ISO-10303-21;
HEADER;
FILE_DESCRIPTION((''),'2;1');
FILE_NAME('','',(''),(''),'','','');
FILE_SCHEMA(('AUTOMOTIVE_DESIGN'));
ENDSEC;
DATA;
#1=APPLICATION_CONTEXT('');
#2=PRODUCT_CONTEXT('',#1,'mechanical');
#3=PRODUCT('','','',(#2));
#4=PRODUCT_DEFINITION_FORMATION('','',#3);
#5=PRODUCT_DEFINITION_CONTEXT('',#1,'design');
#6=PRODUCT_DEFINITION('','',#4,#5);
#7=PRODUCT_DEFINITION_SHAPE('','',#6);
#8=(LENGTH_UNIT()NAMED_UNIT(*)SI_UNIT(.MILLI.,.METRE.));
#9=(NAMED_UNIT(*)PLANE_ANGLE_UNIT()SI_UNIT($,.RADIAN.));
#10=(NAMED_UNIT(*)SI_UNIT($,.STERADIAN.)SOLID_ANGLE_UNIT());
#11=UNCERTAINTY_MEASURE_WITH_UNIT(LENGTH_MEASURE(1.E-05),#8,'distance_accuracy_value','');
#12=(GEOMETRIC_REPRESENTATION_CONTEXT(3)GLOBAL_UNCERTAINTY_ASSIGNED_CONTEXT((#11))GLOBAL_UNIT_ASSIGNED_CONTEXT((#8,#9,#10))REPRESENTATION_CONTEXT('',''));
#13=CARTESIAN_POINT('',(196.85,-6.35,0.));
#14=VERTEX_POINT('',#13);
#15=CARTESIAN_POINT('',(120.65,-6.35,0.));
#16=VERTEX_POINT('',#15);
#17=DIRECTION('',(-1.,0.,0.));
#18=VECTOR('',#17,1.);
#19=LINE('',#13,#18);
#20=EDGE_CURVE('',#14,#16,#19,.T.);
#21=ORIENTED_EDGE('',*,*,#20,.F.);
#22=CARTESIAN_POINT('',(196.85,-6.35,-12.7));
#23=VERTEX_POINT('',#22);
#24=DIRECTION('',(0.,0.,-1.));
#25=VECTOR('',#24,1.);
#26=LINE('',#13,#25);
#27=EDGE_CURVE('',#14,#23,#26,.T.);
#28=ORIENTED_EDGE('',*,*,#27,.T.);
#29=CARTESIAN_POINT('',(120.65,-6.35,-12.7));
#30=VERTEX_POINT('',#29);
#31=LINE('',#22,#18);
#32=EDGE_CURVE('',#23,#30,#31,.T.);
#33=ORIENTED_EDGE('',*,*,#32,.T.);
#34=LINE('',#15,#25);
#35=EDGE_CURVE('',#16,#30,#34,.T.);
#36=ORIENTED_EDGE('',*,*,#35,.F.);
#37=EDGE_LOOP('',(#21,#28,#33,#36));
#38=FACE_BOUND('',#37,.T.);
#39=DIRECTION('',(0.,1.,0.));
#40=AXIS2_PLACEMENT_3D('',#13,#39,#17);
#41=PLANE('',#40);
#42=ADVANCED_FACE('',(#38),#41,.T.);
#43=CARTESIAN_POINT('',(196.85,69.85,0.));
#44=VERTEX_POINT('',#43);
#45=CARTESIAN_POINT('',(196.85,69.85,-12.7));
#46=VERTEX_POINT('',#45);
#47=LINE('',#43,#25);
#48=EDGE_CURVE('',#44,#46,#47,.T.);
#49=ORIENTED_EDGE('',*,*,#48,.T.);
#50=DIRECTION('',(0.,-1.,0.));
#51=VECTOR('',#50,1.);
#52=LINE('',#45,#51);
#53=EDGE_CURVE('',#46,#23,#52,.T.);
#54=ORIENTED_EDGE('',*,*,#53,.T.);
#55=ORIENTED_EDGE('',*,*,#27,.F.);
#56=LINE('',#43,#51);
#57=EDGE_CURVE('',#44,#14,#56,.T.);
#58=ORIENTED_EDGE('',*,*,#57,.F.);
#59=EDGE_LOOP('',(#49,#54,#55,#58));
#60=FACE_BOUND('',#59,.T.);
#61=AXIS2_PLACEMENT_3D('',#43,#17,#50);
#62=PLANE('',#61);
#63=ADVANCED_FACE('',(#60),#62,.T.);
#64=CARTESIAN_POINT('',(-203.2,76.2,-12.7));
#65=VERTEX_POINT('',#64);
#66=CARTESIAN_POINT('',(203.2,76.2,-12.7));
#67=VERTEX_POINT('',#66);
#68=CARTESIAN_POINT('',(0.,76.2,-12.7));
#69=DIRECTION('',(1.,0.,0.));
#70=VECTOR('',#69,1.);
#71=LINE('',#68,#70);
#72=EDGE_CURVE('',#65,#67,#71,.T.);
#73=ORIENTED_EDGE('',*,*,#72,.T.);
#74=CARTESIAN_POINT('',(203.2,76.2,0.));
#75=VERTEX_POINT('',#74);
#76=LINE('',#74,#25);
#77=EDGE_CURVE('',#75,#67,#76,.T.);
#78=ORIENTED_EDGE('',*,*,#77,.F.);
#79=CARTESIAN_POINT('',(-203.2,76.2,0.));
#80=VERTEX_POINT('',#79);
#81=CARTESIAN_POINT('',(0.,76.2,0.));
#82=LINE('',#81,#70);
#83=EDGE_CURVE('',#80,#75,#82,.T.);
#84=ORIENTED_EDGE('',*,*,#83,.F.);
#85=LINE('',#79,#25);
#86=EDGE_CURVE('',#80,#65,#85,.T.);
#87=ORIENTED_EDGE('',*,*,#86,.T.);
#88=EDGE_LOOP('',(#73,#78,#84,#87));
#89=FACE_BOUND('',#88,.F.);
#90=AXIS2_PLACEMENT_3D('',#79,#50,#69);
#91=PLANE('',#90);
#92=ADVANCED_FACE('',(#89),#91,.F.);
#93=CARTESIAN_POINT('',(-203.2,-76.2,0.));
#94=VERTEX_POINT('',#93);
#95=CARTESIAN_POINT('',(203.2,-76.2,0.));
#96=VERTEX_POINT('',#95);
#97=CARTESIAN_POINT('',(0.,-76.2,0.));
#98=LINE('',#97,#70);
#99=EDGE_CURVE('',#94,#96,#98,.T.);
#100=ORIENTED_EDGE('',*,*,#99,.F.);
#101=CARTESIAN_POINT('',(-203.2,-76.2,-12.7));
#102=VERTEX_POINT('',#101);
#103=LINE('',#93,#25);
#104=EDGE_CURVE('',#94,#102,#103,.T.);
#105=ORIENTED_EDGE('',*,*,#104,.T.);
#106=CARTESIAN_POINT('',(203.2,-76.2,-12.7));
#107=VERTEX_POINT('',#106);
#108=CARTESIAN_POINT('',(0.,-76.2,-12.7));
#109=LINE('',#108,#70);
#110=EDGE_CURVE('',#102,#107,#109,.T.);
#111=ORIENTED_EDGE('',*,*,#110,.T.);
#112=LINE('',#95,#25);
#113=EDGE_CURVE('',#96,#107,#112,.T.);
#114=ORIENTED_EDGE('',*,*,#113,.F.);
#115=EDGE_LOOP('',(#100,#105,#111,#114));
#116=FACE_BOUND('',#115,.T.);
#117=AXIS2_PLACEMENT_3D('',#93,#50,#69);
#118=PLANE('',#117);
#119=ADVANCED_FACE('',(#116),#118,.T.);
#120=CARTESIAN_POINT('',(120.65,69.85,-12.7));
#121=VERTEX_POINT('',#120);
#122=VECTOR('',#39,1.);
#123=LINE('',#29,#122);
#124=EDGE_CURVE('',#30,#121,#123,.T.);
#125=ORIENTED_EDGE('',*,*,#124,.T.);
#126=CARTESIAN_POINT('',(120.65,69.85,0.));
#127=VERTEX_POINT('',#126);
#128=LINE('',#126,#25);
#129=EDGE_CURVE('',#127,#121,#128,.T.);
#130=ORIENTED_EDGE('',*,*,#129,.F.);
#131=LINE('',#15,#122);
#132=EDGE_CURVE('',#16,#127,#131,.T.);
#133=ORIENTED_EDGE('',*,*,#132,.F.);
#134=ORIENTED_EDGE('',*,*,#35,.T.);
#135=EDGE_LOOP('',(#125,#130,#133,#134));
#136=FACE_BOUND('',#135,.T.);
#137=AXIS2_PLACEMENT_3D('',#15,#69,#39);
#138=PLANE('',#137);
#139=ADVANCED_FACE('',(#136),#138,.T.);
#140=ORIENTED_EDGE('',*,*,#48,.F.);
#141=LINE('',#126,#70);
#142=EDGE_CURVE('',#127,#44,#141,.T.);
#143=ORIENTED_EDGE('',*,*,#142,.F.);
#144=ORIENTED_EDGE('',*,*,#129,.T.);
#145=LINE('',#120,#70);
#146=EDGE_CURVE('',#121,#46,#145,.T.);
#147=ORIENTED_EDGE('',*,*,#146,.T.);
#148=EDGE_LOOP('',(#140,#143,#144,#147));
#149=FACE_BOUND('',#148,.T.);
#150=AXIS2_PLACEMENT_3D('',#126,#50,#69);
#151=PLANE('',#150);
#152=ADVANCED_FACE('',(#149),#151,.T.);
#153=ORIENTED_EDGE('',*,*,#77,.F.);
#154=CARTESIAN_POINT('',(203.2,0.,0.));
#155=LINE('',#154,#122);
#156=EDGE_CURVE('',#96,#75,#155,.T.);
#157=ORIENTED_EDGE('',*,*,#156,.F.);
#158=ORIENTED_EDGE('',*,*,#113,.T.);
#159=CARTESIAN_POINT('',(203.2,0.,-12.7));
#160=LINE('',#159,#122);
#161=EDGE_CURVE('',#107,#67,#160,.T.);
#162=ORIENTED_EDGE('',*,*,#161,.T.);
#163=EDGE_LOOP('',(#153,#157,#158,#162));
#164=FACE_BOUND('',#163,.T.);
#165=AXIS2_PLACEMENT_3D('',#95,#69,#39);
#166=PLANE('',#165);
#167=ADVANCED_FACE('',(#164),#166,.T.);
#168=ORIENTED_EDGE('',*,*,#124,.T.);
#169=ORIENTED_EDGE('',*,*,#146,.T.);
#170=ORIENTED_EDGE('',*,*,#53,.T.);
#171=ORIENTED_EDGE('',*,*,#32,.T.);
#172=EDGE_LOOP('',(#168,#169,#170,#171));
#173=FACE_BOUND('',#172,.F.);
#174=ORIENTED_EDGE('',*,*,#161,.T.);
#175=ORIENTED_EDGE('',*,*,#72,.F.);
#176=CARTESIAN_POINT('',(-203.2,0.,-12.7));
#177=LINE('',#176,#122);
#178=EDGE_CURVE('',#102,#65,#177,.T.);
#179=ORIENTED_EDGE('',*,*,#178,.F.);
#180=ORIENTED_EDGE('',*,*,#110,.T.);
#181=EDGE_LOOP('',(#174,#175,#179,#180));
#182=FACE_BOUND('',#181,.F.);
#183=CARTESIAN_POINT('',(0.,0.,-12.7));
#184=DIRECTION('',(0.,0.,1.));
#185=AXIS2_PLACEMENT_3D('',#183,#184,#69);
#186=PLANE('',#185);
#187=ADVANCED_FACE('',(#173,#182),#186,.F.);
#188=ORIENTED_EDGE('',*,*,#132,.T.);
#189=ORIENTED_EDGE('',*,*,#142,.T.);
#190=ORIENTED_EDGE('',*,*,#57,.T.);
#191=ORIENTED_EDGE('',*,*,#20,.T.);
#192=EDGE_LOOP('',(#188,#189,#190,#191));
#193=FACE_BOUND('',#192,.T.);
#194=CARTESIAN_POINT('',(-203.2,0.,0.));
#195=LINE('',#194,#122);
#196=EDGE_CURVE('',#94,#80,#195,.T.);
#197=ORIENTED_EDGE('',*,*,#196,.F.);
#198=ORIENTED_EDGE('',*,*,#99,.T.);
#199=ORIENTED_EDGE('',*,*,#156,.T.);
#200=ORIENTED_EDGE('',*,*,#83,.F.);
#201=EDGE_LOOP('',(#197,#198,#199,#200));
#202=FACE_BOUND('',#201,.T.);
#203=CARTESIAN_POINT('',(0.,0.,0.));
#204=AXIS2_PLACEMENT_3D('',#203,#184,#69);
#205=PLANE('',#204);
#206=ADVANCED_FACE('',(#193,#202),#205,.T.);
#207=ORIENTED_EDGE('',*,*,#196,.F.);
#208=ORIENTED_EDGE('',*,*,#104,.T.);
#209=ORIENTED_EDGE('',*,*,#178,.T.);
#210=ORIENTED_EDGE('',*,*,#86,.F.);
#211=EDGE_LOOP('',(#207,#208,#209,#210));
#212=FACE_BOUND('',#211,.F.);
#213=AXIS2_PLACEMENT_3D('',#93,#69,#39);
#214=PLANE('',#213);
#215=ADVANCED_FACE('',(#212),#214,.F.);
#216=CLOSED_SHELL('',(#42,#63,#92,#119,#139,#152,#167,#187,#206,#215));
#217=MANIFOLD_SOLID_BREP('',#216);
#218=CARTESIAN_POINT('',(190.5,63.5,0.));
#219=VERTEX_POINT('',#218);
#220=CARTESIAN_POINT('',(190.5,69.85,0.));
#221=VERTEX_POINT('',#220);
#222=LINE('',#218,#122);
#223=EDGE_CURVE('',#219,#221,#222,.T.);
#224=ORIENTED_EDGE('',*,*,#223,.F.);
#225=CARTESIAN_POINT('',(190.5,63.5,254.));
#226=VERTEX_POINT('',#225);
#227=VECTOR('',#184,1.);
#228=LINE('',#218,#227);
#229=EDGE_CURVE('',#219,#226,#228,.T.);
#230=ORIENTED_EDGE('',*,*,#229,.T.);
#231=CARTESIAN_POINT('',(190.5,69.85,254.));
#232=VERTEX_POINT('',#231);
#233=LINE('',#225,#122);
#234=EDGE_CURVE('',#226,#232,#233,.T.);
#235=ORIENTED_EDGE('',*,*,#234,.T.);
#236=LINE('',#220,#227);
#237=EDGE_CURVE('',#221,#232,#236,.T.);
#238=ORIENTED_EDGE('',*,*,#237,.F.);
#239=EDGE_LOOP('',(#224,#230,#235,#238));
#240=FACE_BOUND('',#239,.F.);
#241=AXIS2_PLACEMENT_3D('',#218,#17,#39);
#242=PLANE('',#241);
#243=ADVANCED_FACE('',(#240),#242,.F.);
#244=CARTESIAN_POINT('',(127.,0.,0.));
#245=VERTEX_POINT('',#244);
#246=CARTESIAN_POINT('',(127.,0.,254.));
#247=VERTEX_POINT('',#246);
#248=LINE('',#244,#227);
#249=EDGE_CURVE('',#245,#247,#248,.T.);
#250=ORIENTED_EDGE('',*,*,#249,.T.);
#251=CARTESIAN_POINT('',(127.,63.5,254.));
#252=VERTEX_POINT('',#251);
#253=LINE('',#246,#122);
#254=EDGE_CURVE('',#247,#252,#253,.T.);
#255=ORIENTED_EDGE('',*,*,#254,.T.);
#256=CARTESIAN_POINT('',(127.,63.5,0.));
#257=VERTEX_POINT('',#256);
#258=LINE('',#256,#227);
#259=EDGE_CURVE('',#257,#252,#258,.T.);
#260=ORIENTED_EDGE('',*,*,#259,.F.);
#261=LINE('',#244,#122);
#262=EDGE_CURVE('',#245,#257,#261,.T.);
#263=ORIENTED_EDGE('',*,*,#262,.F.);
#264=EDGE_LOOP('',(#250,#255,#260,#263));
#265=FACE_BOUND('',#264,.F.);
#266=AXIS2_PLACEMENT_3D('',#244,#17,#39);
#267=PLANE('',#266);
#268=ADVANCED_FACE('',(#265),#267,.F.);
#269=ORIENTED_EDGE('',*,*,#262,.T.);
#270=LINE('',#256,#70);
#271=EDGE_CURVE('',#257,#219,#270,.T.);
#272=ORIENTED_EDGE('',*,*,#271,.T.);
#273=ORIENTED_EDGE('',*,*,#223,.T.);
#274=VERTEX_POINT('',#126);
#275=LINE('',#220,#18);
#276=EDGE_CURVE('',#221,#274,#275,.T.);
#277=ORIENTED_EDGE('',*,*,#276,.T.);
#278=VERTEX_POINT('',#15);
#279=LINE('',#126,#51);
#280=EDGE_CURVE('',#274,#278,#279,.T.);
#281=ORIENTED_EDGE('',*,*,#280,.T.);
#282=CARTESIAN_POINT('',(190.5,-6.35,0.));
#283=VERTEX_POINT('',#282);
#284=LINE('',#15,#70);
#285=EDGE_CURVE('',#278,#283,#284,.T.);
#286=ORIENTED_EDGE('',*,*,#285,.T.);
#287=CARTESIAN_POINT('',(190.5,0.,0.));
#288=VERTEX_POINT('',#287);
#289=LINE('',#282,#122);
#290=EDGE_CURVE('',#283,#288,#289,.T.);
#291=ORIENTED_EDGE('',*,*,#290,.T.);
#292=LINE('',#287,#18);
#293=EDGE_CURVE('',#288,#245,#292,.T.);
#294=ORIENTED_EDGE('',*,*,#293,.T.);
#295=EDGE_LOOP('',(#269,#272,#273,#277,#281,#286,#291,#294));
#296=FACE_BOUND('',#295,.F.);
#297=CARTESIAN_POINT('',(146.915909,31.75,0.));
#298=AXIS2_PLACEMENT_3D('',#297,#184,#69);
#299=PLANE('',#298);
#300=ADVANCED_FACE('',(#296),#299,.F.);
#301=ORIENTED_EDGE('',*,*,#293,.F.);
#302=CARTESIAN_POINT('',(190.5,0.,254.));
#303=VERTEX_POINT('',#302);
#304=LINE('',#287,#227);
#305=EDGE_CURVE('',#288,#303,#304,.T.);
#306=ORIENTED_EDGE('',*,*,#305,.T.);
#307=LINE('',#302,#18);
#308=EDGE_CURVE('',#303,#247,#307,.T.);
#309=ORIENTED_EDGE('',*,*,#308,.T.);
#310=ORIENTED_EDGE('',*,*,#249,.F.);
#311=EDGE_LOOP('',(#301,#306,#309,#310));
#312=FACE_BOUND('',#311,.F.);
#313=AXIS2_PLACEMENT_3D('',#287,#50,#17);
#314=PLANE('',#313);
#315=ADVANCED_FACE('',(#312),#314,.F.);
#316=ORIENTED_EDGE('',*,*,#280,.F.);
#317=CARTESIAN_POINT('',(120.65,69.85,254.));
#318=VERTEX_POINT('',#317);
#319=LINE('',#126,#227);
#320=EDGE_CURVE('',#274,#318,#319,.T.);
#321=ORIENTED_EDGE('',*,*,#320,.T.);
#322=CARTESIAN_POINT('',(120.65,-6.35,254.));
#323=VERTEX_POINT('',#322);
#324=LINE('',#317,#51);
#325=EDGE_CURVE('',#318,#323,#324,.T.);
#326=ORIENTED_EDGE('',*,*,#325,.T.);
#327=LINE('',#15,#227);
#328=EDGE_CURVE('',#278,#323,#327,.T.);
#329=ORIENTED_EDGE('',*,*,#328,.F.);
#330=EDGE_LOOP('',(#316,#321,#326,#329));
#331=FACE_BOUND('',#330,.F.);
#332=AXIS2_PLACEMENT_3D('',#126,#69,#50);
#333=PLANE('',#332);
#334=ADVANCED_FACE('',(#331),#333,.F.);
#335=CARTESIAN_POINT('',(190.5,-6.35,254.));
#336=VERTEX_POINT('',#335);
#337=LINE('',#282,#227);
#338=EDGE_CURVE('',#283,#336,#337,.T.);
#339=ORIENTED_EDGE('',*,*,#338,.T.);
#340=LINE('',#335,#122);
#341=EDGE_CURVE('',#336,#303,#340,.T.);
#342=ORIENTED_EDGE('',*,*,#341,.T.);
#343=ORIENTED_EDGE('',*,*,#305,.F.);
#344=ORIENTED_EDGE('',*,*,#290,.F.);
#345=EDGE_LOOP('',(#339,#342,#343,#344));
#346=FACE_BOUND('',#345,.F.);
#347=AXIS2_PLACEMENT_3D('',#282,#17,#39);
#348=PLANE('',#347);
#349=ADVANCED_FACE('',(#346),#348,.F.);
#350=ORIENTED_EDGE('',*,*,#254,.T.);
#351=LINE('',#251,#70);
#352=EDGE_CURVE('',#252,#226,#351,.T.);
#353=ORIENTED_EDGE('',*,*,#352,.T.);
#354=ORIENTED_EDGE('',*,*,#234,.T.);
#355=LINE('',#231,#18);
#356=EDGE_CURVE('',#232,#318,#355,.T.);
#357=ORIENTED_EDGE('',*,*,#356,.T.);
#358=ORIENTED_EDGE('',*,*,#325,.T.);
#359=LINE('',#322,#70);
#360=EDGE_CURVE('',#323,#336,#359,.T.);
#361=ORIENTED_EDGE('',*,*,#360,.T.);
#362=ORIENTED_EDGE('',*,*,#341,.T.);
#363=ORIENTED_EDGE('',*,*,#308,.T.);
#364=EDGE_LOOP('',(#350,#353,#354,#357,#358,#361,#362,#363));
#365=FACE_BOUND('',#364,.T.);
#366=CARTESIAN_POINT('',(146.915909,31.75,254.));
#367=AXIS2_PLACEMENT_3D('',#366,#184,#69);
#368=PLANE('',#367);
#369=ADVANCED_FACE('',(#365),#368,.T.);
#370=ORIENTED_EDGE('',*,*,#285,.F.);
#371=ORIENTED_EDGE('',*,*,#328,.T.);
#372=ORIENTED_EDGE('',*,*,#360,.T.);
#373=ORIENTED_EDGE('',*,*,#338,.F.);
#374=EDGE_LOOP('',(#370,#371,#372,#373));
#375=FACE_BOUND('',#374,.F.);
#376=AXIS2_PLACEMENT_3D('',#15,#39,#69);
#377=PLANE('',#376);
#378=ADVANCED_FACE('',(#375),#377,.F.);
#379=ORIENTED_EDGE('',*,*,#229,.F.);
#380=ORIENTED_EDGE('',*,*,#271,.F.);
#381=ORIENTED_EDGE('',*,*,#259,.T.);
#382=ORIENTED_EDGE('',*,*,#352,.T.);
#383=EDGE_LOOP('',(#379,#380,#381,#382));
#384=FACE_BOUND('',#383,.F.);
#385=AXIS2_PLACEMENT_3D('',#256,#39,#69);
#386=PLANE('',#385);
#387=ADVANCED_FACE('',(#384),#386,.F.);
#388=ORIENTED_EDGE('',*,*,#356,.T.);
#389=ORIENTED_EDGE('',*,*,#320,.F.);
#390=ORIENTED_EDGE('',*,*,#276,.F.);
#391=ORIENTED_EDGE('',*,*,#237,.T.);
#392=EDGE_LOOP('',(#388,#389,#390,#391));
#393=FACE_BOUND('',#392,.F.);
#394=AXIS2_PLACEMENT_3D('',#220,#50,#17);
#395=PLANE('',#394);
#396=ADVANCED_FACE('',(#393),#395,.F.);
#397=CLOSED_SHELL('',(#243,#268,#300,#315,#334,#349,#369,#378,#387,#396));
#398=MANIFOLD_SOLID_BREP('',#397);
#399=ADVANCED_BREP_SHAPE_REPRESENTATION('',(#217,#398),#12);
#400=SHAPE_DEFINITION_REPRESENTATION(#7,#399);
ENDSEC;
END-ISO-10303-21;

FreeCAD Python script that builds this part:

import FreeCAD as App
import Part
import Sketcher

V = App.Vector
Q = App.Units.Quantity

doc = App.newDocument("Part")
params = doc.addObject("Spreadsheet::Sheet", "Params")
for row, (alias, value) in enumerate([
    ("sketch1_width", "16 in"),
    ("sketch1_width2", "3 in"),
    ("sketch1_height", "6 in"),
    ("pad1_length", "0.5 in"),
    ("sketch2_height", "3 in"),
    ("sketch2_width", "2.5 in"),
    ("sketch2_width2", "2.75 in"),
    ("pad2_length", "10 in"),
], start=1):
    params.set(f"A{row}", alias)
    params.set(f"B{row}", "=" + value)
    params.setAlias(f"B{row}", alias)

body = doc.addObject("PartDesign::Body", "Body")

# Sketch on XY plane
sketch1 = body.newObject("Sketcher::SketchObject", "Sketch")
sketch1.AttachmentSupport = (doc.getObject("XY_Plane"), [""])
sketch1.MapMode = "FlatFace"
sketch1.addGeometry(Part.LineSegment(V(-203.2, 76.2, 0), V(-203.2, -76.2, 0)), False)
sketch1.addGeometry(Part.LineSegment(V(-203.2, -76.2, 0), V(203.2, -76.2, 0)), False)
sketch1.addGeometry(Part.LineSegment(V(203.2, -76.2, 0), V(203.2, 76.2, 0)), False)
sketch1.addGeometry(Part.LineSegment(V(203.2, 76.2, 0), V(-203.2, 76.2, 0)), False)
sketch1.addGeometry(Part.LineSegment(V(196.85, 69.85, 0), V(196.85, -6.35, 0)), False)
sketch1.addGeometry(Part.LineSegment(V(196.85, -6.35, 0), V(120.65, -6.35, 0)), False)
sketch1.addGeometry(Part.LineSegment(V(120.65, -6.35, 0), V(120.65, 69.85, 0)), False)
sketch1.addGeometry(Part.LineSegment(V(120.65, 69.85, 0), V(196.85, 69.85, 0)), False)
sketch1.addConstraint(Sketcher.Constraint("Coincident", 0, 2, 1, 1))
sketch1.addConstraint(Sketcher.Constraint("Coincident", 1, 2, 2, 1))
sketch1.addConstraint(Sketcher.Constraint("Coincident", 2, 2, 3, 1))
sketch1.addConstraint(Sketcher.Constraint("Coincident", 3, 2, 0, 1))
sketch1.addConstraint(Sketcher.Constraint("Coincident", 4, 2, 5, 1))
sketch1.addConstraint(Sketcher.Constraint("Coincident", 5, 2, 6, 1))
sketch1.addConstraint(Sketcher.Constraint("Coincident", 6, 2, 7, 1))
sketch1.addConstraint(Sketcher.Constraint("Coincident", 7, 2, 4, 1))
sketch1.addConstraint(Sketcher.Constraint("Vertical", 0))
sketch1.addConstraint(Sketcher.Constraint("Horizontal", 1))
sketch1.addConstraint(Sketcher.Constraint("Vertical", 2))
sketch1.addConstraint(Sketcher.Constraint("Horizontal", 3))
sketch1.addConstraint(Sketcher.Constraint("Vertical", 4))
sketch1.addConstraint(Sketcher.Constraint("Horizontal", 5))
sketch1.addConstraint(Sketcher.Constraint("Vertical", 6))
sketch1.addConstraint(Sketcher.Constraint("Horizontal", 7))
sketch1.addConstraint(Sketcher.Constraint("Symmetric", 0, 2, 2, 2, -1, 1))
sketch1.addConstraint(Sketcher.Constraint("Equal", 7, 4))
sketch1.addConstraint(Sketcher.Constraint("DistanceX", 1, 1, 1, 2, Q("16 in")))
sketch1.addConstraint(Sketcher.Constraint("DistanceX", 5, 2, 5, 1, Q("3 in")))
sketch1.addConstraint(Sketcher.Constraint("DistanceY", 0, 2, 0, 1, Q("6 in")))
sketch1.addConstraint(Sketcher.Constraint("DistanceX", -1, 1, 4, 2, Q("7.75 in")))
sketch1.addConstraint(Sketcher.Constraint("DistanceY", 4, 2, -1, 1, Q("0.25 in")))
sketch1.setExpression("Constraints[18]", "Params.sketch1_width")
sketch1.setExpression("Constraints[19]", "Params.sketch1_width2")
sketch1.setExpression("Constraints[20]", "Params.sketch1_height")
pad1 = body.newObject("PartDesign::Pad", "Pad")
pad1.Profile = sketch1
pad1.setExpression("Length", "Params.pad1_length")
pad1.Reversed = True
body2 = doc.addObject("PartDesign::Body", "Body001")

# Sketch on XY plane
sketch2 = body2.newObject("Sketcher::SketchObject", "Sketch001")
sketch2.AttachmentSupport = (doc.getObject("XY_Plane001"), [""])
sketch2.MapMode = "FlatFace"
sketch2.addGeometry(Part.LineSegment(V(190.5, -6.35, 0), V(190.5, 0, 0)), False)
sketch2.addGeometry(Part.LineSegment(V(190.5, 0, 0), V(127, 0, 0)), False)
sketch2.addGeometry(Part.LineSegment(V(127, 0, 0), V(127, 63.5, 0)), False)
sketch2.addGeometry(Part.LineSegment(V(127, 63.5, 0), V(190.5, 63.5, 0)), False)
sketch2.addGeometry(Part.LineSegment(V(190.5, 63.5, 0), V(190.5, 69.85, 0)), False)
sketch2.addGeometry(Part.LineSegment(V(190.5, 69.85, 0), V(120.65, 69.85, 0)), False)
sketch2.addGeometry(Part.LineSegment(V(120.65, 69.85, 0), V(120.65, -6.35, 0)), False)
sketch2.addGeometry(Part.LineSegment(V(120.65, -6.35, 0), V(190.5, -6.35, 0)), False)
sketch2.addConstraint(Sketcher.Constraint("Coincident", 0, 2, 1, 1))
sketch2.addConstraint(Sketcher.Constraint("Coincident", 1, 2, 2, 1))
sketch2.addConstraint(Sketcher.Constraint("Coincident", 2, 2, 3, 1))
sketch2.addConstraint(Sketcher.Constraint("Coincident", 3, 2, 4, 1))
sketch2.addConstraint(Sketcher.Constraint("Coincident", 4, 2, 5, 1))
sketch2.addConstraint(Sketcher.Constraint("Coincident", 5, 2, 6, 1))
sketch2.addConstraint(Sketcher.Constraint("Coincident", 6, 2, 7, 1))
sketch2.addConstraint(Sketcher.Constraint("Coincident", 7, 2, 0, 1))
sketch2.addConstraint(Sketcher.Constraint("Vertical", 0))
sketch2.addConstraint(Sketcher.Constraint("Horizontal", 1))
sketch2.addConstraint(Sketcher.Constraint("Vertical", 2))
sketch2.addConstraint(Sketcher.Constraint("Horizontal", 3))
sketch2.addConstraint(Sketcher.Constraint("Vertical", 4))
sketch2.addConstraint(Sketcher.Constraint("Horizontal", 5))
sketch2.addConstraint(Sketcher.Constraint("Vertical", 6))
sketch2.addConstraint(Sketcher.Constraint("Horizontal", 7))
sketch2.addConstraint(Sketcher.Constraint("PointOnObject", 0, 2, -1))
sketch2.addConstraint(Sketcher.Constraint("Vertical", 0, 2, 3, 2))
sketch2.addConstraint(Sketcher.Constraint("Equal", 3, 2))
sketch2.addConstraint(Sketcher.Constraint("Equal", 0, 4))
sketch2.addConstraint(Sketcher.Constraint("DistanceY", 6, 2, 6, 1, Q("3 in")))
sketch2.addConstraint(Sketcher.Constraint("DistanceX", 1, 2, 1, 1, Q("2.5 in")))
sketch2.addConstraint(Sketcher.Constraint("DistanceX", -1, 1, 1, 2, Q("5 in")))
sketch2.addConstraint(Sketcher.Constraint("DistanceX", 5, 2, 5, 1, Q("2.75 in")))
sketch2.setExpression("Constraints[20]", "Params.sketch2_height")
sketch2.setExpression("Constraints[21]", "Params.sketch2_width")
sketch2.setExpression("Constraints[23]", "Params.sketch2_width2")
pad2 = body2.newObject("PartDesign::Pad", "Pad001")
pad2.Profile = sketch2
pad2.setExpression("Length", "Params.pad2_length")

doc.recompute()
